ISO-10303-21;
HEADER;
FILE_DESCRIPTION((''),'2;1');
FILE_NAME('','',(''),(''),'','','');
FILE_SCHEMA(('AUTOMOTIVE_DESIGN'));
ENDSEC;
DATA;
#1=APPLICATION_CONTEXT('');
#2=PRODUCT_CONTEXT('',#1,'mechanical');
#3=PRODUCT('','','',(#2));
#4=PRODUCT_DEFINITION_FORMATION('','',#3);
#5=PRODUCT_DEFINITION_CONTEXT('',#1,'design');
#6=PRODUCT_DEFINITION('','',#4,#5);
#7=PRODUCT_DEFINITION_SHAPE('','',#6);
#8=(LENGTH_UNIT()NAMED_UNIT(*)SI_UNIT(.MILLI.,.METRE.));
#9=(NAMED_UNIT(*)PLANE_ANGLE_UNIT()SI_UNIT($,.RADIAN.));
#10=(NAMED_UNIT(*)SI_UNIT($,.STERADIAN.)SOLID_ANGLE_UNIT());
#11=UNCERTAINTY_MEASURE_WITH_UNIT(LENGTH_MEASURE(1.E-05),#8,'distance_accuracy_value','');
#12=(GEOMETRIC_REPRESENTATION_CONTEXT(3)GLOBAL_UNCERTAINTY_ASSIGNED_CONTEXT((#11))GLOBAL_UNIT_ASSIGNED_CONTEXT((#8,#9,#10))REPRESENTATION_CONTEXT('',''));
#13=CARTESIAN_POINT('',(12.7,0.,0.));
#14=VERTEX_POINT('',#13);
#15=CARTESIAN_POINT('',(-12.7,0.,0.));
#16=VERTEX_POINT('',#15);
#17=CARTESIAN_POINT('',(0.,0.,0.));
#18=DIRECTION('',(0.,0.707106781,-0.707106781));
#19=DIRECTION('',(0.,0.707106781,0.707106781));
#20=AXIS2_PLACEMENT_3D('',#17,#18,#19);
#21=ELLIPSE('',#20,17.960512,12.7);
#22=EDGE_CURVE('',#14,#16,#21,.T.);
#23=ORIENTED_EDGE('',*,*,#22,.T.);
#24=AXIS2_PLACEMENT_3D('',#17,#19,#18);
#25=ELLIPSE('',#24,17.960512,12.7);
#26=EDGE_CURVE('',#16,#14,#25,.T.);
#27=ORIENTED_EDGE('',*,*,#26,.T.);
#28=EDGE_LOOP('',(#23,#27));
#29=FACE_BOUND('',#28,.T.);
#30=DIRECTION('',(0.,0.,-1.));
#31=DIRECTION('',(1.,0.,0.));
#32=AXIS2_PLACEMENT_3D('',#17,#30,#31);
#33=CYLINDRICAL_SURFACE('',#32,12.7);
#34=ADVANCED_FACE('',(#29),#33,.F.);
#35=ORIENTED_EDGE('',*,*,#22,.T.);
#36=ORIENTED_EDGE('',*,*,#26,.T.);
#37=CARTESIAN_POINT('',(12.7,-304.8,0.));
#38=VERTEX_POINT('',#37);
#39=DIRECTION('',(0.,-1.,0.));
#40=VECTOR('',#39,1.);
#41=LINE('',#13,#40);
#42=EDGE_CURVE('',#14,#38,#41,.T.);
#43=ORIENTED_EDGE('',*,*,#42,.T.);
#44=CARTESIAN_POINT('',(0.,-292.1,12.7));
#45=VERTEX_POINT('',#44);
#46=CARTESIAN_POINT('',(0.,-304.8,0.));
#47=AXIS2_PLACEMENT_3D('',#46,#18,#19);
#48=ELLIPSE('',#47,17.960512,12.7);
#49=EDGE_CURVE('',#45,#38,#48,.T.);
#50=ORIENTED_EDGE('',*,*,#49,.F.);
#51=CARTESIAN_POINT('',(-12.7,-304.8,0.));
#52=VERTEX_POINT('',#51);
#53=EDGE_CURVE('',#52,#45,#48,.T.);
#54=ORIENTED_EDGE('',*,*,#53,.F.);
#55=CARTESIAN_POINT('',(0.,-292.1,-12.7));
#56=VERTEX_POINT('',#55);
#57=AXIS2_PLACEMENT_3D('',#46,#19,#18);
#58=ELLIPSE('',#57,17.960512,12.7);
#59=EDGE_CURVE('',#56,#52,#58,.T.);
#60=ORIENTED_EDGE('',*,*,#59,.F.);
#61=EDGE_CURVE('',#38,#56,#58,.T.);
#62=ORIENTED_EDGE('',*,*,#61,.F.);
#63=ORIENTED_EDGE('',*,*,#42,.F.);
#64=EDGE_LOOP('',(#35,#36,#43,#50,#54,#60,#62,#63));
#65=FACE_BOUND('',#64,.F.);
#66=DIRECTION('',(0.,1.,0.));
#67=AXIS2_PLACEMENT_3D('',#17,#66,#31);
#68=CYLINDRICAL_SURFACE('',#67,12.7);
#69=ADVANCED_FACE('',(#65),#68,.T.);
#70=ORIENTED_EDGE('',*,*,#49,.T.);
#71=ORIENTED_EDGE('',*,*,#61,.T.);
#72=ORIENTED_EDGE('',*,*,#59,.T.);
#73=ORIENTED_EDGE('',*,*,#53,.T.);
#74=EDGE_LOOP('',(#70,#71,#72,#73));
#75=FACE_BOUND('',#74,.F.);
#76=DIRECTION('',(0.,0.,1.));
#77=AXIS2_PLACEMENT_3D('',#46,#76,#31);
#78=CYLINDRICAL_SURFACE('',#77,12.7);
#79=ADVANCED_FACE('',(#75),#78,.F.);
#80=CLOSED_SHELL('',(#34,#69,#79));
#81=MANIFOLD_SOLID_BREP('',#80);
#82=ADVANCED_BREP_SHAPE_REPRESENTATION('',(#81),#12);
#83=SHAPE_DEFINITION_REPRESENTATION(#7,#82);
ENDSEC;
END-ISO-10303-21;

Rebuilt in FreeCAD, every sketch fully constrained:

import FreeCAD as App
import Part
import Sketcher

V = App.Vector
Q = App.Units.Quantity

doc = App.newDocument("Part")
body = doc.addObject("PartDesign::Body", "Body")

# Sketch on XZ plane
sketch1 = body.newObject("Sketcher::SketchObject", "Sketch")
sketch1.AttachmentSupport = (doc.getObject("XZ_Plane"), [""])
sketch1.MapMode = "FlatFace"
sketch1.addGeometry(Part.Circle(V(0, 0, 0), V(0, 0, 1), 13), False)
sketch1.addConstraint([
    Sketcher.Constraint("Coincident", 0, 3, -1, 1),
    Sketcher.Constraint("Diameter", 0, Q("1 in")),
])
pad1 = body.newObject("PartDesign::Pad", "Pad")
pad1.Profile = sketch1
pad1.Length = Q("12 in")

# Sketch on XY plane
sketch2 = body.newObject("Sketcher::SketchObject", "Sketch001")
sketch2.AttachmentSupport = (doc.getObject("XY_Plane"), [""])
sketch2.MapMode = "FlatFace"
sketch2.addGeometry([
    Part.Circle(V(0, 0, 0), V(0, 0, 1), 13),
    Part.Circle(V(0, -305, 0), V(0, 0, 1), 13),
], False)
sketch2.addConstraint([
    Sketcher.Constraint("Coincident", 0, 3, -1, 1),
    Sketcher.Constraint("Equal", 0, 1),
    Sketcher.Constraint("PointOnObject", 1, 3, -2),
    Sketcher.Constraint("Diameter", 0, Q("1 in")),
    Sketcher.Constraint("DistanceY", 1, 3, -1, 1, Q("12 in")),
])
pocket1 = body.newObject("PartDesign::Pocket", "Pocket")
pocket1.Profile = sketch2
pocket1.Type = "ThroughAll"
pocket1.Midplane = True

doc.recompute()
